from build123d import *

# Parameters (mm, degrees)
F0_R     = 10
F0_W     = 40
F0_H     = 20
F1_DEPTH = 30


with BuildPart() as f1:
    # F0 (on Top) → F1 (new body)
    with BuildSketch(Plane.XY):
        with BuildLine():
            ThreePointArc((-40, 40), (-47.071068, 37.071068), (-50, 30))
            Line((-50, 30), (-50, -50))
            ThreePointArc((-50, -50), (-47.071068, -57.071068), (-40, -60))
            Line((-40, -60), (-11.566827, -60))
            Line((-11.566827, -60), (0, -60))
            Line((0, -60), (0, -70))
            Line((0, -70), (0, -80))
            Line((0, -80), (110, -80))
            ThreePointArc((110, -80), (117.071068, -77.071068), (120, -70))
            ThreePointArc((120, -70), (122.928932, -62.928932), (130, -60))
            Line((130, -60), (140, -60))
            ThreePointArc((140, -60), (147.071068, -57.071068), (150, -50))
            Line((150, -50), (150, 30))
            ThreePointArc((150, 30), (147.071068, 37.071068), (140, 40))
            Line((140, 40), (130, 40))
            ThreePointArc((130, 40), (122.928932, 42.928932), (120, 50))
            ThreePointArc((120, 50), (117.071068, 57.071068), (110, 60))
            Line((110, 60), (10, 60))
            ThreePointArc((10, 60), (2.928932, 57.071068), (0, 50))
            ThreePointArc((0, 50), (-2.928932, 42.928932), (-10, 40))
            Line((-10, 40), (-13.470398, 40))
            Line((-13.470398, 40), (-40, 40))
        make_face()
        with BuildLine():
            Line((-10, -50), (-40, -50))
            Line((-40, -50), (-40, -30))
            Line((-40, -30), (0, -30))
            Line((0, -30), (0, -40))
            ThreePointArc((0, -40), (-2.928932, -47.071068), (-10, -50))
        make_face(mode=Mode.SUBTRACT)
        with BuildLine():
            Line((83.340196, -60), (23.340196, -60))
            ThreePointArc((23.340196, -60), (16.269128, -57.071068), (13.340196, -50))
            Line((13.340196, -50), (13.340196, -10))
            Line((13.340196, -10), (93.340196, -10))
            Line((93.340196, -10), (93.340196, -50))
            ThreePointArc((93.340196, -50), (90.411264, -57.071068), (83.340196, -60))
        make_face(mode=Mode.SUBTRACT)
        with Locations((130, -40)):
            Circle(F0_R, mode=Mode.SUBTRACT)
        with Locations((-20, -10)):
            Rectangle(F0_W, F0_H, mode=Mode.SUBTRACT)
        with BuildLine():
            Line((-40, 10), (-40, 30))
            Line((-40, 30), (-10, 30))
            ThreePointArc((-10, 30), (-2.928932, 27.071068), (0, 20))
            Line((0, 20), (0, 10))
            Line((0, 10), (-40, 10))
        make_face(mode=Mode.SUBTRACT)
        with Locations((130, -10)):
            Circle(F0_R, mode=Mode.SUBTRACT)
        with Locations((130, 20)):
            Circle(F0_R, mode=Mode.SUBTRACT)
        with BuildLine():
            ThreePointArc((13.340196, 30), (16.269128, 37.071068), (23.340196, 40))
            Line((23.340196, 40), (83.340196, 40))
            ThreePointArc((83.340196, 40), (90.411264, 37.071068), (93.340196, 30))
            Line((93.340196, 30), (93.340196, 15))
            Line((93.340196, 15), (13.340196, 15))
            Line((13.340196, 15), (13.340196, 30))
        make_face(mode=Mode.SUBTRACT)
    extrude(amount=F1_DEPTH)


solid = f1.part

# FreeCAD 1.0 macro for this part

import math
import FreeCAD as App
import Part
import Sketcher


def add_polygon(sketch, points):
    """Adds a closed chain of lines whose ends are joined by coincident constraints."""
    first, n = sketch.GeometryCount, len(points)
    for a, b in zip(points, points[1:] + points[:1]):
        sketch.addGeometry(Part.LineSegment(App.Vector(*a, 0), App.Vector(*b, 0)), False)
    for i in range(n):
        sketch.addConstraint(Sketcher.Constraint("Coincident", first + i, 2, first + (i + 1) % n, 1))

doc = App.newDocument("Part")
body = doc.addObject("PartDesign::Body", "Body")

# Sketch on XY plane
sketch1 = doc.addObject("Sketcher::SketchObject", "Sketch")
body.addObject(sketch1)
sketch1.AttachmentSupport = (doc.XY_Plane, [""])
sketch1.MapMode = "FlatFace"
sketch1.addGeometry(Part.ArcOfCircle(Part.Circle(App.Vector(-40.000001, 30.000001, 0), App.Vector(0, 0, 1), 9.999999), math.radians(89.999996), math.radians(180.000004)), False)  # 0
sketch1.addGeometry(Part.LineSegment(App.Vector(-50, 30, 0), App.Vector(-50, -50, 0)), False)  # 1
sketch1.addGeometry(Part.ArcOfCircle(Part.Circle(App.Vector(-40.000001, -50.000001, 0), App.Vector(0, 0, 1), 9.999999), math.radians(179.999996), math.radians(270.000004)), False)  # 2
sketch1.addGeometry(Part.LineSegment(App.Vector(-40, -60, 0), App.Vector(0, -60, 0)), False)  # 3
sketch1.addGeometry(Part.LineSegment(App.Vector(0, -60, 0), App.Vector(0, -80, 0)), False)  # 4
sketch1.addGeometry(Part.LineSegment(App.Vector(0, -80, 0), App.Vector(110, -80, 0)), False)  # 5
sketch1.addGeometry(Part.ArcOfCircle(Part.Circle(App.Vector(110.000001, -70.000001, 0), App.Vector(0, 0, 1), 9.999999), math.radians(-90.000004), math.radians(0.000004)), False)  # 6
sketch1.addGeometry(Part.ArcOfCircle(Part.Circle(App.Vector(129.999999, -69.999999, 0), App.Vector(0, 0, 1), 9.999999), math.radians(89.999996), math.radians(180.000004)), False)  # 7
sketch1.addGeometry(Part.LineSegment(App.Vector(130, -60, 0), App.Vector(140, -60, 0)), False)  # 8
sketch1.addGeometry(Part.ArcOfCircle(Part.Circle(App.Vector(140.000001, -50.000001, 0), App.Vector(0, 0, 1), 9.999999), math.radians(-90.000004), math.radians(0.000004)), False)  # 9
sketch1.addGeometry(Part.LineSegment(App.Vector(150, -50, 0), App.Vector(150, 30, 0)), False)  # 10
sketch1.addGeometry(Part.ArcOfCircle(Part.Circle(App.Vector(140.000001, 30.000001, 0), App.Vector(0, 0, 1), 9.999999), math.radians(-0.000004), math.radians(90.000004)), False)  # 11
sketch1.addGeometry(Part.LineSegment(App.Vector(140, 40, 0), App.Vector(130, 40, 0)), False)  # 12
sketch1.addGeometry(Part.ArcOfCircle(Part.Circle(App.Vector(129.999999, 49.999999, 0), App.Vector(0, 0, 1), 9.999999), math.radians(179.999996), math.radians(270.000004)), False)  # 13
sketch1.addGeometry(Part.ArcOfCircle(Part.Circle(App.Vector(110.000001, 50.000001, 0), App.Vector(0, 0, 1), 9.999999), math.radians(-0.000004), math.radians(90.000004)), False)  # 14
sketch1.addGeometry(Part.LineSegment(App.Vector(110, 60, 0), App.Vector(10, 60, 0)), False)  # 15
sketch1.addGeometry(Part.ArcOfCircle(Part.Circle(App.Vector(9.999999, 50.000001, 0), App.Vector(0, 0, 1), 9.999999), math.radians(89.999996), math.radians(180.000004)), False)  # 16
sketch1.addGeometry(Part.ArcOfCircle(Part.Circle(App.Vector(-9.999999, 49.999999, 0), App.Vector(0, 0, 1), 9.999999), math.radians(-90.000004), math.radians(0.000004)), False)  # 17
sketch1.addGeometry(Part.LineSegment(App.Vector(-10, 40, 0), App.Vector(-40, 40, 0)), False)  # 18
sketch1.addGeometry(Part.ArcOfCircle(Part.Circle(App.Vector(-9.999999, -40.000001, 0), App.Vector(0, 0, 1), 9.999999), math.radians(-90.000004), math.radians(0.000004)), False)  # 19
sketch1.addGeometry(Part.LineSegment(App.Vector(-10, -50, 0), App.Vector(-40, -50, 0)), False)  # 20
sketch1.addGeometry(Part.LineSegment(App.Vector(-40, -50, 0), App.Vector(-40, -30, 0)), False)  # 21
sketch1.addGeometry(Part.LineSegment(App.Vector(-40, -30, 0), App.Vector(0, -30, 0)), False)  # 22
sketch1.addGeometry(Part.LineSegment(App.Vector(0, -30, 0), App.Vector(0, -40, 0)), False)  # 23
add_polygon(sketch1, [(0, -20), (-40, -20), (-40, 0), (0, 0)])  # lines 24-27
sketch1.addGeometry(Part.ArcOfCircle(Part.Circle(App.Vector(83.340197, -50.000001, 0), App.Vector(0, 0, 1), 9.999999), math.radians(-90.000004), math.radians(0.000004)), False)  # 28
sketch1.addGeometry(Part.LineSegment(App.Vector(83.340196, -60, 0), App.Vector(23.340196, -60, 0)), False)  # 29
sketch1.addGeometry(Part.ArcOfCircle(Part.Circle(App.Vector(23.340195, -50.000001, 0), App.Vector(0, 0, 1), 9.999999), math.radians(179.999996), math.radians(270.000004)), False)  # 30
sketch1.addGeometry(Part.LineSegment(App.Vector(13.340196, -50, 0), App.Vector(13.340196, -10, 0)), False)  # 31
sketch1.addGeometry(Part.LineSegment(App.Vector(13.340196, -10, 0), App.Vector(93.340196, -10, 0)), False)  # 32
sketch1.addGeometry(Part.LineSegment(App.Vector(93.340196, -10, 0), App.Vector(93.340196, -50, 0)), False)  # 33
sketch1.addGeometry(Part.Circle(App.Vector(130, -40, 0), App.Vector(0, 0, 1), 10), False)  # 34
sketch1.addGeometry(Part.Circle(App.Vector(130, -10, 0), App.Vector(0, 0, 1), 10), False)  # 35
sketch1.addGeometry(Part.LineSegment(App.Vector(0, 10, 0), App.Vector(-40, 10, 0)), False)  # 36
sketch1.addGeometry(Part.LineSegment(App.Vector(-40, 10, 0), App.Vector(-40, 30, 0)), False)  # 37
sketch1.addGeometry(Part.LineSegment(App.Vector(-40, 30, 0), App.Vector(-10, 30, 0)), False)  # 38
sketch1.addGeometry(Part.ArcOfCircle(Part.Circle(App.Vector(-9.999999, 20.000001, 0), App.Vector(0, 0, 1), 9.999999), math.radians(-0.000004), math.radians(90.000004)), False)  # 39
sketch1.addGeometry(Part.LineSegment(App.Vector(0, 20, 0), App.Vector(0, 10, 0)), False)  # 40
sketch1.addGeometry(Part.LineSegment(App.Vector(13.340196, 15, 0), App.Vector(13.340196, 30, 0)), False)  # 41
sketch1.addGeometry(Part.ArcOfCircle(Part.Circle(App.Vector(23.340195, 30.000001, 0), App.Vector(0, 0, 1), 9.999999), math.radians(89.999996), math.radians(180.000004)), False)  # 42
sketch1.addGeometry(Part.LineSegment(App.Vector(23.340196, 40, 0), App.Vector(83.340196, 40, 0)), False)  # 43
sketch1.addGeometry(Part.ArcOfCircle(Part.Circle(App.Vector(83.340197, 30.000001, 0), App.Vector(0, 0, 1), 9.999999), math.radians(-0.000004), math.radians(90.000004)), False)  # 44
sketch1.addGeometry(Part.LineSegment(App.Vector(93.340196, 30, 0), App.Vector(93.340196, 15, 0)), False)  # 45
sketch1.addGeometry(Part.LineSegment(App.Vector(93.340196, 15, 0), App.Vector(13.340196, 15, 0)), False)  # 46
sketch1.addGeometry(Part.Circle(App.Vector(130, 20, 0), App.Vector(0, 0, 1), 10), False)  # 47
sketch1.addConstraint([
    Sketcher.Constraint("Tangent", 0, 2, 1, 1),
    Sketcher.Constraint("Tangent", 1, 2, 2, 1),
    Sketcher.Constraint("Tangent", 2, 2, 3, 1),
    Sketcher.Constraint("Coincident", 3, 2, 4, 1),
    Sketcher.Constraint("Coincident", 4, 2, 5, 1),
    Sketcher.Constraint("Tangent", 5, 2, 6, 1),
    Sketcher.Constraint("Tangent", 6, 2, 7, 2),
    Sketcher.Constraint("Tangent", 7, 1, 8, 1),
    Sketcher.Constraint("Tangent", 8, 2, 9, 1),
    Sketcher.Constraint("Tangent", 9, 2, 10, 1),
    Sketcher.Constraint("Tangent", 10, 2, 11, 1),
    Sketcher.Constraint("Tangent", 11, 2, 12, 1),
    Sketcher.Constraint("Tangent", 12, 2, 13, 2),
    Sketcher.Constraint("Tangent", 13, 1, 14, 1),
    Sketcher.Constraint("Tangent", 14, 2, 15, 1),
    Sketcher.Constraint("Tangent", 15, 2, 16, 1),
    Sketcher.Constraint("Tangent", 16, 2, 17, 2),
    Sketcher.Constraint("Tangent", 17, 1, 18, 1),
    Sketcher.Constraint("Tangent", 18, 2, 0, 1),
    Sketcher.Constraint("Tangent", 19, 1, 20, 1),
    Sketcher.Constraint("Coincident", 20, 2, 21, 1),
    Sketcher.Constraint("Coincident", 21, 2, 22, 1),
    Sketcher.Constraint("Coincident", 22, 2, 23, 1),
    Sketcher.Constraint("Tangent", 23, 2, 19, 2),
    Sketcher.Constraint("Tangent", 28, 1, 29, 1),
    Sketcher.Constraint("Tangent", 29, 2, 30, 2),
    Sketcher.Constraint("Tangent", 30, 1, 31, 1),
    Sketcher.Constraint("Coincident", 31, 2, 32, 1),
    Sketcher.Constraint("Coincident", 32, 2, 33, 1),
    Sketcher.Constraint("Tangent", 33, 2, 28, 2),
    Sketcher.Constraint("Coincident", 36, 2, 37, 1),
    Sketcher.Constraint("Coincident", 37, 2, 38, 1),
    Sketcher.Constraint("Tangent", 38, 2, 39, 2),
    Sketcher.Constraint("Tangent", 39, 1, 40, 1),
    Sketcher.Constraint("Coincident", 40, 2, 36, 1),
    Sketcher.Constraint("Tangent", 41, 2, 42, 2),
    Sketcher.Constraint("Tangent", 42, 1, 43, 1),
    Sketcher.Constraint("Tangent", 43, 2, 44, 2),
    Sketcher.Constraint("Tangent", 44, 1, 45, 1),
    Sketcher.Constraint("Coincident", 45, 2, 46, 1),
    Sketcher.Constraint("Coincident", 46, 2, 41, 1),
    Sketcher.Constraint("Vertical", 1),
    Sketcher.Constraint("Horizontal", 3),
    Sketcher.Constraint("Vertical", 4),
    Sketcher.Constraint("Horizontal", 5),
    Sketcher.Constraint("Horizontal", 8),
    Sketcher.Constraint("Vertical", 10),
    Sketcher.Constraint("Horizontal", 12),
    Sketcher.Constraint("Horizontal", 15),
    Sketcher.Constraint("Horizontal", 18),
    Sketcher.Constraint("Horizontal", 20),
    Sketcher.Constraint("Vertical", 21),
    Sketcher.Constraint("Horizontal", 22),
    Sketcher.Constraint("Vertical", 23),
    Sketcher.Constraint("Horizontal", 24),
    Sketcher.Constraint("Vertical", 25),
    Sketcher.Constraint("Horizontal", 26),
    Sketcher.Constraint("Vertical", 27),
    Sketcher.Constraint("Horizontal", 29),
    Sketcher.Constraint("Vertical", 31),
    Sketcher.Constraint("Horizontal", 32),
    Sketcher.Constraint("Vertical", 33),
    Sketcher.Constraint("Horizontal", 36),
    Sketcher.Constraint("Vertical", 37),
    Sketcher.Constraint("Horizontal", 38),
    Sketcher.Constraint("Vertical", 40),
    Sketcher.Constraint("Vertical", 41),
    Sketcher.Constraint("Horizontal", 43),
    Sketcher.Constraint("Vertical", 45),
    Sketcher.Constraint("Horizontal", 46),
    Sketcher.Constraint("Coincident", 26, 2, -1, 1),
    Sketcher.Constraint("Coincident", 20, 2, 2, 3),
    Sketcher.Constraint("Coincident", 37, 2, 0, 3),
    Sketcher.Constraint("Equal", 0, 2),
    Sketcher.Constraint("Equal", 2, 6),
    Sketcher.Constraint("Equal", 6, 7),
    Sketcher.Constraint("Equal", 7, 9),
    Sketcher.Constraint("Equal", 9, 11),
    Sketcher.Constraint("Equal", 11, 13),
    Sketcher.Constraint("Equal", 13, 14),
    Sketcher.Constraint("Equal", 14, 16),
    Sketcher.Constraint("Equal", 16, 17),
    Sketcher.Constraint("Equal", 17, 19),
    Sketcher.Constraint("Equal", 19, 28),
    Sketcher.Constraint("Equal", 28, 30),
    Sketcher.Constraint("Equal", 30, 34),
    Sketcher.Constraint("Equal", 34, 35),
    Sketcher.Constraint("Equal", 35, 39),
    Sketcher.Constraint("Equal", 39, 42),
    Sketcher.Constraint("Equal", 42, 44),
    Sketcher.Constraint("Equal", 44, 47),
    Sketcher.Constraint("Symmetric", 27, 2, 39, 1, -1, 1),
    Sketcher.Constraint("Symmetric", 16, 3, 17, 3, -2),
    Sketcher.Constraint("PointOnObject", 3, 2, -2),
    Sketcher.Constraint("PointOnObject", 22, 2, -2),
    Sketcher.Constraint("Horizontal", 6, 3, 7, 3),
    Sketcher.Constraint("Horizontal", 2, 3, 9, 3),
    Sketcher.Constraint("Horizontal", 0, 3, 11, 3),
    Sketcher.Constraint("Horizontal", 9, 3, 28, 3),
    Sketcher.Constraint("Horizontal", 19, 3, 34, 3),
    Sketcher.Constraint("Horizontal", 11, 3, 42, 3),
    Sketcher.Constraint("Horizontal", 39, 3, 47, 3),
    Sketcher.Constraint("Horizontal", 35, 3, 31, 2),
    Sketcher.Constraint("Vertical", 7, 3, 13, 3),
    Sketcher.Constraint("Vertical", 13, 3, 34, 3),
    Sketcher.Constraint("Vertical", 34, 3, 35, 3),
    Sketcher.Constraint("Vertical", 30, 3, 42, 3),
    Sketcher.Constraint("Vertical", 28, 3, 44, 3),
    Sketcher.Constraint("Vertical", 35, 3, 47, 3),
    Sketcher.Constraint("Vertical", 21, 2, 24, 2),
    Sketcher.Constraint("Equal", 46, 1),
    Sketcher.Constraint("Equal", 4, 21),
    Sketcher.Constraint("Equal", 12, 23),
    Sketcher.Constraint("Equal", 21, 25),
    Sketcher.Constraint("Equal", 36, 31),
    Sketcher.Constraint("Equal", 27, 37),
    Sketcher.Constraint("Diameter", 34, 20.0),
    Sketcher.Constraint("DistanceX", 3, 1, 3, 2, 40.0),
    Sketcher.Constraint("DistanceX", 5, 1, 5, 2, 110.0),
    Sketcher.Constraint("DistanceX", 29, 2, 29, 1, 60.0),
    Sketcher.Constraint("DistanceY", 41, 1, 41, 2, 15.0),
    Sketcher.Constraint("DistanceX", -1, 1, 28, 3, 83.340197),
])
pad1 = doc.addObject("PartDesign::Pad", "Pad")
body.addObject(pad1)
pad1.Profile = sketch1
pad1.Length = 30

doc.recompute()
